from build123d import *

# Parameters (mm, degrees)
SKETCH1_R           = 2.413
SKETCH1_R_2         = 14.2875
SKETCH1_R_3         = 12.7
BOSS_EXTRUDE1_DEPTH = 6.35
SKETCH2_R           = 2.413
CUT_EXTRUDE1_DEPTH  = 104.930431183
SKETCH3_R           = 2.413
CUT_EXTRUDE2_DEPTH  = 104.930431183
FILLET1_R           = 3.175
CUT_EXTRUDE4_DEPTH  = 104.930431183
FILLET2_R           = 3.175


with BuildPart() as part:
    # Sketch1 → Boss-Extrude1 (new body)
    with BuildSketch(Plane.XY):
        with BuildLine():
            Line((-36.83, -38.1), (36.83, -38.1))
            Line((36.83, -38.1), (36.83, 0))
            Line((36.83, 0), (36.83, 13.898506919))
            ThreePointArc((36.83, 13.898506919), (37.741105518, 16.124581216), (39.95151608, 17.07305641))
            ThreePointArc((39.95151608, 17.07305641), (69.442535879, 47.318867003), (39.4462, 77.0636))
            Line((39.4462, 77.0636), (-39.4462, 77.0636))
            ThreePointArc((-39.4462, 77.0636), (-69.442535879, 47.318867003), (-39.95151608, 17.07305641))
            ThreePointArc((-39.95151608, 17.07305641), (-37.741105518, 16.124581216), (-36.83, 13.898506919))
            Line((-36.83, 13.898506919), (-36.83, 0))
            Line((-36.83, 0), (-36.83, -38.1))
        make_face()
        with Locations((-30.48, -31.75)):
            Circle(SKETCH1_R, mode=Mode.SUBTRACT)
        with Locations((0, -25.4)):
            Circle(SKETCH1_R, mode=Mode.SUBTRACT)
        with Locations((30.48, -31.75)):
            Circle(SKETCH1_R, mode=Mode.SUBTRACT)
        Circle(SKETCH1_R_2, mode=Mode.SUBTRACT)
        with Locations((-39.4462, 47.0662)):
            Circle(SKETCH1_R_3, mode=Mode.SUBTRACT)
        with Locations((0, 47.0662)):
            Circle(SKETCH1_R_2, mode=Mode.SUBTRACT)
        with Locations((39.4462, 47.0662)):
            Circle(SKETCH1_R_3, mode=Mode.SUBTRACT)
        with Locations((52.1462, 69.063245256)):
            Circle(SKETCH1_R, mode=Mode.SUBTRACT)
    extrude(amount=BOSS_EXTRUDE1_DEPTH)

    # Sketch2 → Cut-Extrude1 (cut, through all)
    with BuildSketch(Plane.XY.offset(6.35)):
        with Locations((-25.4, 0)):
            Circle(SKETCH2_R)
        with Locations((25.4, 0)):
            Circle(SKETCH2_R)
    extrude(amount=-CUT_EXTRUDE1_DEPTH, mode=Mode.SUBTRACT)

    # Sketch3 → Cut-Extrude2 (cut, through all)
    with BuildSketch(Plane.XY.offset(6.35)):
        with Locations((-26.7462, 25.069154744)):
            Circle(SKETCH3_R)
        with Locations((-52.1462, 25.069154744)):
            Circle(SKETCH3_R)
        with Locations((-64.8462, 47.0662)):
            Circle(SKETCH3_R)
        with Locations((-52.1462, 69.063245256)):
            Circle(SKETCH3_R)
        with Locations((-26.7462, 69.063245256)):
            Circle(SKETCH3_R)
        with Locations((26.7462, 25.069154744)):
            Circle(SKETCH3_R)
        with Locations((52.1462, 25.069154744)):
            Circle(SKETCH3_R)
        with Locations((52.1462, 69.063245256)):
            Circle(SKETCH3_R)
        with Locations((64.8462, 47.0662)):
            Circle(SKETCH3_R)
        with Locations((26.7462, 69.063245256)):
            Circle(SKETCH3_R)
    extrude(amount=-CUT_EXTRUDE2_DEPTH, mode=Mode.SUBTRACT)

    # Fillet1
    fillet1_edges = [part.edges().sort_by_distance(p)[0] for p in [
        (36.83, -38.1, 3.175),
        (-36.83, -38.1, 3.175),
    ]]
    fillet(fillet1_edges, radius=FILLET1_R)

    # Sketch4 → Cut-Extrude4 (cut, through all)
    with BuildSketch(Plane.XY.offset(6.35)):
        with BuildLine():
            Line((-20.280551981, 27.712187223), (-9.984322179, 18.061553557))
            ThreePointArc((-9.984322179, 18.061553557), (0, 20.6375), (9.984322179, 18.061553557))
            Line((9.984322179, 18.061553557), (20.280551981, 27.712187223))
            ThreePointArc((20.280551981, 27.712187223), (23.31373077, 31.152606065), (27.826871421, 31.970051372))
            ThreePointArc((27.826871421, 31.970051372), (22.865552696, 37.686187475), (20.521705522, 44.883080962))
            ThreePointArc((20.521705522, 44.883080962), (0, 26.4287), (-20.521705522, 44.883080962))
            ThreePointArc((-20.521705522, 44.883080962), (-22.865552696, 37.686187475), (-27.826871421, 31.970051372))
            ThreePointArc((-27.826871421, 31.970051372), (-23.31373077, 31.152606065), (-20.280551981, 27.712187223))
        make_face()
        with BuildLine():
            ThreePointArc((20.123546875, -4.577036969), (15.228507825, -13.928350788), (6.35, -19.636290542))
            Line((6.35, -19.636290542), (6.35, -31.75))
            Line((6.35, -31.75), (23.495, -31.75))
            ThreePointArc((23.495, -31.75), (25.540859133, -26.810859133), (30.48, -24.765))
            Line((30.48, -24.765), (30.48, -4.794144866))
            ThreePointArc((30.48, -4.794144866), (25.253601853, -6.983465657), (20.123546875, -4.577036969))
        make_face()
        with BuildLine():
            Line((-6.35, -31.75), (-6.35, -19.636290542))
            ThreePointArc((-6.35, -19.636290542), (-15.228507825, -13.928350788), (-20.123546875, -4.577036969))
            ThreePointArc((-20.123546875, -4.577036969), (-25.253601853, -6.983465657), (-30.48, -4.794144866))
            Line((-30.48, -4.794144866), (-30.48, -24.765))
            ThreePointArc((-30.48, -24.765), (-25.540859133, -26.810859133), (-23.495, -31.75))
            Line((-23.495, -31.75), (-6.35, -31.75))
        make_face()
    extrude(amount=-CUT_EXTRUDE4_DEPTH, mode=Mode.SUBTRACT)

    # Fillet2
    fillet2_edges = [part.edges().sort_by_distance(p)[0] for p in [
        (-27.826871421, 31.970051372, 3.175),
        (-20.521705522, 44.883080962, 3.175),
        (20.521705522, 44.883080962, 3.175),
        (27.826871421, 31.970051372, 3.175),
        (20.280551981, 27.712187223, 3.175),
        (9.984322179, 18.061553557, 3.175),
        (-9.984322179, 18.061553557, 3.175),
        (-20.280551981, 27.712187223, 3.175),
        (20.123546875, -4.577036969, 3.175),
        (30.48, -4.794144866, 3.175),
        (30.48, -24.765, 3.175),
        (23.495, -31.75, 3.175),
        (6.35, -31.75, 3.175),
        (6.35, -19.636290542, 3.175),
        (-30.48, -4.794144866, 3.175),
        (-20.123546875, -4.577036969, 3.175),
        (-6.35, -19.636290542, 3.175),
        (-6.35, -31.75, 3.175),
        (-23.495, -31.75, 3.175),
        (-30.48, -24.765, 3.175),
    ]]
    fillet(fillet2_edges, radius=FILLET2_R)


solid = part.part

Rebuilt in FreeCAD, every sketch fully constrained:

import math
import FreeCAD as App
import Part
import Sketcher
Q = App.Units.Quantity


def edges_at(feature, points):
    """Names of the edges that pass closest to the given points."""
    edges = feature.Shape.Edges
    near = lambda p: min(range(len(edges)), key=lambda i: edges[i].distToShape(Part.Vertex(*p))[0])
    return sorted({f"Edge{near(p) + 1}" for p in points})

doc = App.newDocument("Part")
params = doc.addObject("Spreadsheet::Sheet", "Params")
for row, (alias, value) in enumerate([
    ("sketch1_diameter", "1 in"),
    ("sketch1_diameter2", "0.19 in"),
    ("sketch1_diameter3", "1.125 in"),
    ("sketch1_width", "2.9 in"),
    ("sketch1_radius", "0.125 in"),
    ("pad1_length", "0.25 in"),
    ("sketch2_diameter", "0.19 in"),
    ("sketch3_diameter", "0.19 in"),
    ("fillet_radius", "0.125 in"),
    ("sketch4_radius", "0.75 in"),
    ("sketch4_radius2", "0.8125 in"),
    ("sketch4_radius3", "0.275 in"),
    ("fillet2_radius", "0.125 in"),
], start=1):
    params.set(f"A{row}", alias)
    params.set(f"B{row}", "=" + value)
    params.setAlias(f"B{row}", alias)

body = doc.addObject("PartDesign::Body", "Body")

# Sketch on XY plane
sketch1 = body.newObject("Sketcher::SketchObject", "Sketch")
sketch1.AttachmentSupport = (doc.getObject("XY_Plane"), [""])
sketch1.MapMode = "FlatFace"
sketch1.addGeometry([
    Part.LineSegment(App.Vector(-36.8, -38.1, 0), App.Vector(36.8, -38.1, 0)),  # 0
    Part.LineSegment(App.Vector(36.8, -38.1, 0), App.Vector(36.8, 13.9, 0)),  # 1
    Part.ArcOfCircle(Part.Circle(App.Vector(40, 13.9, 0), App.Vector(0, 0, 1), 3.2), math.radians(91), math.radians(180)),  # 2
    Part.ArcOfCircle(Part.Circle(App.Vector(39.4, 47.1, 0), App.Vector(0, 0, 1), 30), math.radians(-89), math.radians(90)),  # 3
    Part.LineSegment(App.Vector(39.4, 77.1, 0), App.Vector(-39.4, 77.1, 0)),  # 4
    Part.ArcOfCircle(Part.Circle(App.Vector(-39.4, 47.1, 0), App.Vector(0, 0, 1), 30), math.radians(90), math.radians(269)),  # 5
    Part.ArcOfCircle(Part.Circle(App.Vector(-40, 13.9, 0), App.Vector(0, 0, 1), 3.2), math.radians(0), math.radians(89)),  # 6
    Part.LineSegment(App.Vector(-36.8, 13.9, 0), App.Vector(-36.8, -38.1, 0)),  # 7
    Part.Circle(App.Vector(-30.5, -31.8, 0), App.Vector(0, 0, 1), 2.4),  # 8
    Part.Circle(App.Vector(0, -25.4, 0), App.Vector(0, 0, 1), 2.4),  # 9
    Part.Circle(App.Vector(0, 0, 0), App.Vector(0, 0, 1), 14.3),  # 10
    Part.Circle(App.Vector(30.5, -31.8, 0), App.Vector(0, 0, 1), 2.4),  # 11
    Part.Circle(App.Vector(-39.4, 47.1, 0), App.Vector(0, 0, 1), 12.7),  # 12
    Part.Circle(App.Vector(0, 47.1, 0), App.Vector(0, 0, 1), 14.3),  # 13
    Part.Circle(App.Vector(39.4, 47.1, 0), App.Vector(0, 0, 1), 12.7),  # 14
    Part.Circle(App.Vector(52.1, 69.1, 0), App.Vector(0, 0, 1), 2.4),  # 15
], False)
sketch1.addConstraint([
    Sketcher.Constraint("Coincident", 0, 2, 1, 1),
    Sketcher.Constraint("Tangent", 1, 2, 2, 2),
    Sketcher.Constraint("Tangent", 2, 1, 3, 1),
    Sketcher.Constraint("Tangent", 3, 2, 4, 1),
    Sketcher.Constraint("Tangent", 4, 2, 5, 1),
    Sketcher.Constraint("Tangent", 5, 2, 6, 2),
    Sketcher.Constraint("Tangent", 6, 1, 7, 1),
    Sketcher.Constraint("Coincident", 7, 2, 0, 1),
    Sketcher.Constraint("Horizontal", 0),
    Sketcher.Constraint("Vertical", 1),
    Sketcher.Constraint("Horizontal", 4),
    Sketcher.Constraint("Vertical", 7),
    Sketcher.Constraint("Coincident", 10, 3, -1, 1),
    Sketcher.Constraint("Coincident", 12, 3, 5, 3),
    Sketcher.Constraint("Coincident", 14, 3, 3, 3),
    Sketcher.Constraint("Equal", 3, 5),
    Sketcher.Constraint("Equal", 2, 6),
    Sketcher.Constraint("Equal", 8, 9),
    Sketcher.Constraint("Equal", 9, 11),
    Sketcher.Constraint("Equal", 10, 13),
    Sketcher.Constraint("Equal", 12, 14),
    Sketcher.Constraint("Equal", 11, 15),
    Sketcher.Constraint("Symmetric", 2, 3, 6, 3, -2),
    Sketcher.Constraint("Symmetric", 8, 3, 11, 3, -2),
    Sketcher.Constraint("PointOnObject", 9, 3, -2),
    Sketcher.Constraint("PointOnObject", 13, 3, -2),
    Sketcher.Constraint("Horizontal", 12, 3, 13, 3),
    Sketcher.Constraint("Diameter", 12, Q("1 in")),
    Sketcher.Constraint("Diameter", 8, Q("0.19 in")),
    Sketcher.Constraint("Diameter", 10, Q("1.125 in")),
    Sketcher.Constraint("DistanceX", 0, 1, 0, 2, Q("2.9 in")),
    Sketcher.Constraint("DistanceY", 9, 3, -1, 1, Q("1 in")),
    Sketcher.Constraint("Radius", 2, Q("0.125 in")),
    Sketcher.Constraint("Radius", 3, Q("1.181 in")),
    Sketcher.Constraint("DistanceX", 8, 3, -1, 1, Q("1.2 in")),
    Sketcher.Constraint("DistanceY", 0, 2, -1, 1, Q("1.5 in")),
    Sketcher.Constraint("DistanceX", 3, 3, 15, 3, Q("0.5 in")),
    Sketcher.Constraint("DistanceX", 4, 2, 4, 1, Q("3.106 in")),
    Sketcher.Constraint("DistanceY", 8, 3, -1, 1, Q("1.25 in")),
    Sketcher.Constraint("DistanceY", -1, 1, 3, 3, Q("1.853 in")),
    Sketcher.Constraint("DistanceY", 2, 3, 15, 3, Q("55.164738 mm")),
])
sketch1.setExpression("Constraints[27]", "Params.sketch1_diameter")
sketch1.setExpression("Constraints[28]", "Params.sketch1_diameter2")
sketch1.setExpression("Constraints[29]", "Params.sketch1_diameter3")
sketch1.setExpression("Constraints[30]", "Params.sketch1_width")
sketch1.setExpression("Constraints[32]", "Params.sketch1_radius")
pad1 = body.newObject("PartDesign::Pad", "Pad")
pad1.Profile = sketch1
pad1.setExpression("Length", "Params.pad1_length")

# Sketch on XY plane
sketch2 = body.newObject("Sketcher::SketchObject", "Sketch001")
sketch2.AttachmentSupport = (doc.getObject("XY_Plane"), [""])
sketch2.MapMode = "FlatFace"
sketch2.AttachmentOffset = App.Placement(App.Vector(0, 0, 0.25 * 25.4), App.Rotation())
sketch2.addGeometry([
    Part.Circle(App.Vector(-25.4, 0, 0), App.Vector(0, 0, 1), 2.4),
    Part.Circle(App.Vector(25.4, 0, 0), App.Vector(0, 0, 1), 2.4),
], False)
sketch2.addConstraint([
    Sketcher.Constraint("Equal", 0, 1),
    Sketcher.Constraint("Symmetric", 0, 3, 1, 3, -1, 1),
    Sketcher.Constraint("PointOnObject", 0, 3, -1),
    Sketcher.Constraint("Diameter", 0, Q("0.19 in")),
    Sketcher.Constraint("DistanceX", 0, 3, -1, 1, Q("1 in")),
])
sketch2.setExpression("Constraints[3]", "Params.sketch2_diameter")
pocket1 = body.newObject("PartDesign::Pocket", "Pocket")
pocket1.Profile = sketch2
pocket1.Type = "ThroughAll"

# Sketch on XY plane
sketch3 = body.newObject("Sketcher::SketchObject", "Sketch002")
sketch3.AttachmentSupport = (doc.getObject("XY_Plane"), [""])
sketch3.MapMode = "FlatFace"
sketch3.AttachmentOffset = App.Placement(App.Vector(0, 0, 0.25 * 25.4), App.Rotation())
sketch3.addGeometry([
    Part.Circle(App.Vector(-26.7, 25.1, 0), App.Vector(0, 0, 1), 2.4),  # 0
    Part.Circle(App.Vector(-52.1, 25.1, 0), App.Vector(0, 0, 1), 2.4),  # 1
    Part.Circle(App.Vector(-64.8, 47.1, 0), App.Vector(0, 0, 1), 2.4),  # 2
    Part.Circle(App.Vector(-52.1, 69.1, 0), App.Vector(0, 0, 1), 2.4),  # 3
    Part.Circle(App.Vector(-26.7, 69.1, 0), App.Vector(0, 0, 1), 2.4),  # 4
    Part.Circle(App.Vector(26.7, 25.1, 0), App.Vector(0, 0, 1), 2.4),  # 5
    Part.Circle(App.Vector(52.1, 25.1, 0), App.Vector(0, 0, 1), 2.4),  # 6
    Part.Circle(App.Vector(52.1, 69.1, 0), App.Vector(0, 0, 1), 2.4),  # 7
    Part.Circle(App.Vector(64.8, 47.1, 0), App.Vector(0, 0, 1), 2.4),  # 8
    Part.Circle(App.Vector(26.7, 69.1, 0), App.Vector(0, 0, 1), 2.4),  # 9
], False)
sketch3.addConstraint([
    Sketcher.Constraint("Equal", 0, 1),
    Sketcher.Constraint("Equal", 1, 2),
    Sketcher.Constraint("Equal", 2, 3),
    Sketcher.Constraint("Equal", 3, 4),
    Sketcher.Constraint("Equal", 4, 5),
    Sketcher.Constraint("Equal", 5, 6),
    Sketcher.Constraint("Equal", 6, 7),
    Sketcher.Constraint("Equal", 7, 8),
    Sketcher.Constraint("Equal", 8, 9),
    Sketcher.Constraint("Symmetric", 0, 3, 5, 3, -2),
    Sketcher.Constraint("Symmetric", 1, 3, 6, 3, -2),
    Sketcher.Constraint("Symmetric", 3, 3, 7, 3, -2),
    Sketcher.Constraint("Symmetric", 2, 3, 8, 3, -2),
    Sketcher.Constraint("Symmetric", 4, 3, 9, 3, -2),
    Sketcher.Constraint("Horizontal", 0, 3, 1, 3),
    Sketcher.Constraint("Horizontal", 3, 3, 4, 3),
    Sketcher.Constraint("Vertical", 1, 3, 3, 3),
    Sketcher.Constraint("Vertical", 0, 3, 4, 3),
    Sketcher.Constraint("Diameter", 0, Q("0.19 in")),
    Sketcher.Constraint("DistanceX", 1, 3, 0, 3, Q("1 in")),
    Sketcher.Constraint("DistanceX", 2, 3, 1, 3, Q("0.5 in")),
    Sketcher.Constraint("DistanceX", 0, 3, -1, 1, Q("1.053 in")),
    Sketcher.Constraint("DistanceY", -1, 1, 2, 3, Q("1.853 in")),
    Sketcher.Constraint("DistanceY", 1, 3, 3, 3, Q("43.994091 mm")),
    Sketcher.Constraint("DistanceY", -1, 1, 0, 3, Q("25.069155 mm")),
])
sketch3.setExpression("Constraints[18]", "Params.sketch3_diameter")
pocket2 = body.newObject("PartDesign::Pocket", "Pocket001")
pocket2.Profile = sketch3
pocket2.Type = "ThroughAll"
doc.recompute()

fillet = body.newObject("PartDesign::Fillet", "Fillet")
fillet.Base = (pocket2, edges_at(pocket2, [(36.83, -38.1, 3.175), (-36.83, -38.1, 3.175)]))
fillet.setExpression("Radius", "Params.fillet_radius")

# Sketch on XY plane
sketch4 = body.newObject("Sketcher::SketchObject", "Sketch003")
sketch4.AttachmentSupport = (doc.getObject("XY_Plane"), [""])
sketch4.MapMode = "FlatFace"
sketch4.AttachmentOffset = App.Placement(App.Vector(0, 0, 0.25 * 25.4), App.Rotation())
sketch4.addGeometry([
    Part.LineSegment(App.Vector(-20, 28, 0), App.Vector(-10, 18, 0)),  # 0
    Part.ArcOfCircle(Part.Circle(App.Vector(0, 0, 0), App.Vector(0, 0, 1), 21), math.radians(61), math.radians(119)),  # 1
    Part.LineSegment(App.Vector(10, 18, 0), App.Vector(20, 28, 0)),  # 2
    Part.ArcOfCircle(Part.Circle(App.Vector(27, 25, 0), App.Vector(0, 0, 1), 7), math.radians(81), math.radians(158)),  # 3
    Part.ArcOfCircle(Part.Circle(App.Vector(39, 47, 0), App.Vector(0, 0, 1), 19), math.radians(-173), math.radians(-128)),  # 4
    Part.ArcOfCircle(Part.Circle(App.Vector(0, 47, 0), App.Vector(0, 0, 1), 21), math.radians(-174), math.radians(-6)),  # 5
    Part.ArcOfCircle(Part.Circle(App.Vector(-39, 47, 0), App.Vector(0, 0, 1), 19), math.radians(-52), math.radians(-7)),  # 6
    Part.ArcOfCircle(Part.Circle(App.Vector(-27, 25, 0), App.Vector(0, 0, 1), 7), math.radians(22), math.radians(99)),  # 7
    Part.ArcOfCircle(Part.Circle(App.Vector(0, 0, 0), App.Vector(0, 0, 1), 21), math.radians(-72), math.radians(-13)),  # 8
    Part.LineSegment(App.Vector(6, -20, 0), App.Vector(6, -32, 0)),  # 9
    Part.LineSegment(App.Vector(6, -32, 0), App.Vector(23, -32, 0)),  # 10
    Part.ArcOfCircle(Part.Circle(App.Vector(30, -32, 0), App.Vector(0, 0, 1), 7), math.radians(90), math.radians(180)),  # 11
    Part.LineSegment(App.Vector(30, -25, 0), App.Vector(30, -5, 0)),  # 12
    Part.ArcOfCircle(Part.Circle(App.Vector(25, 0, 0), App.Vector(0, 0, 1), 7), math.radians(-139), math.radians(-43)),  # 13
    Part.LineSegment(App.Vector(-6, -32, 0), App.Vector(-6, -20, 0)),  # 14
    Part.ArcOfCircle(Part.Circle(App.Vector(0, 0, 0), App.Vector(0, 0, 1), 21), math.radians(-167), math.radians(-108)),  # 15
    Part.ArcOfCircle(Part.Circle(App.Vector(-25, 0, 0), App.Vector(0, 0, 1), 7), math.radians(-137), math.radians(-41)),  # 16
    Part.LineSegment(App.Vector(-30, -5, 0), App.Vector(-30, -25, 0)),  # 17
    Part.ArcOfCircle(Part.Circle(App.Vector(-30, -32, 0), App.Vector(0, 0, 1), 7), math.radians(0), math.radians(90)),  # 18
    Part.LineSegment(App.Vector(-23, -32, 0), App.Vector(-6, -32, 0)),  # 19
], False)
sketch4.addConstraint([
    Sketcher.Constraint("Coincident", 0, 2, 1, 2),
    Sketcher.Constraint("Coincident", 1, 1, 2, 1),
    Sketcher.Constraint("Coincident", 2, 2, 3, 2),
    Sketcher.Constraint("Coincident", 3, 1, 4, 2),
    Sketcher.Constraint("Coincident", 4, 1, 5, 2),
    Sketcher.Constraint("Coincident", 5, 1, 6, 2),
    Sketcher.Constraint("Coincident", 6, 1, 7, 2),
    Sketcher.Constraint("Coincident", 7, 1, 0, 1),
    Sketcher.Constraint("Coincident", 8, 1, 9, 1),
    Sketcher.Constraint("Coincident", 9, 2, 10, 1),
    Sketcher.Constraint("Coincident", 10, 2, 11, 2),
    Sketcher.Constraint("Coincident", 11, 1, 12, 1),
    Sketcher.Constraint("Coincident", 12, 2, 13, 2),
    Sketcher.Constraint("Coincident", 13, 1, 8, 2),
    Sketcher.Constraint("Coincident", 14, 2, 15, 2),
    Sketcher.Constraint("Coincident", 15, 1, 16, 2),
    Sketcher.Constraint("Coincident", 16, 1, 17, 1),
    Sketcher.Constraint("Coincident", 17, 2, 18, 2),
    Sketcher.Constraint("Coincident", 18, 1, 19, 1),
    Sketcher.Constraint("Coincident", 19, 2, 14, 1),
    Sketcher.Constraint("Vertical", 9),
    Sketcher.Constraint("Horizontal", 10),
    Sketcher.Constraint("Vertical", 12),
    Sketcher.Constraint("Vertical", 14),
    Sketcher.Constraint("Vertical", 17),
    Sketcher.Constraint("Horizontal", 19),
    Sketcher.Constraint("Coincident", 1, 3, -1, 1),
    Sketcher.Constraint("Coincident", 8, 3, -1, 1),
    Sketcher.Constraint("Coincident", 15, 3, -1, 1),
    Sketcher.Constraint("Equal", 1, 5),
    Sketcher.Constraint("Equal", 4, 6),
    Sketcher.Constraint("Equal", 3, 7),
    Sketcher.Constraint("Equal", 5, 8),
    Sketcher.Constraint("Equal", 7, 11),
    Sketcher.Constraint("Equal", 11, 13),
    Sketcher.Constraint("Equal", 8, 15),
    Sketcher.Constraint("Equal", 13, 16),
    Sketcher.Constraint("Equal", 16, 18),
    Sketcher.Constraint("Symmetric", 13, 3, 16, 3, -1, 1),
    Sketcher.Constraint("Symmetric", 4, 3, 6, 3, -2),
    Sketcher.Constraint("Symmetric", 3, 3, 7, 3, -2),
    Sketcher.Constraint("Symmetric", 11, 3, 18, 3, -2),
    Sketcher.Constraint("Symmetric", 12, 2, 16, 1, -2),
    Sketcher.Constraint("Symmetric", 9, 2, 19, 2, -2),
    Sketcher.Constraint("PointOnObject", 5, 3, -2),
    Sketcher.Constraint("Horizontal", 4, 3, 5, 3),
    Sketcher.Constraint("Horizontal", 0, 2, 1, 1),
    Sketcher.Constraint("Horizontal", 2, 2, 7, 1),
    Sketcher.Constraint("Horizontal", 18, 3, 9, 2),
    Sketcher.Constraint("Vertical", 18, 3, 16, 1),
    Sketcher.Constraint("Radius", 4, Q("0.75 in")),
    Sketcher.Constraint("DistanceX", -1, 1, 13, 3, Q("1 in")),
    Sketcher.Constraint("Radius", 1, Q("0.8125 in")),
    Sketcher.Constraint("Radius", 3, Q("0.275 in")),
    Sketcher.Constraint("DistanceX", -1, 1, 11, 3, Q("1.2 in")),
    Sketcher.Constraint("DistanceX", 3, 3, 4, 3, Q("0.5 in")),
    Sketcher.Constraint("DistanceX", 14, 2, 8, 1, Q("0.5 in")),
    Sketcher.Constraint("DistanceY", 11, 3, -1, 1, Q("1.25 in")),
    Sketcher.Constraint("DistanceX", -1, 1, 3, 3, Q("1.053 in")),
    Sketcher.Constraint("DistanceY", -1, 1, 4, 3, Q("1.853 in")),
    Sketcher.Constraint("DistanceY", 0, 2, 7, 3, Q("7.007601 mm")),
    Sketcher.Constraint("DistanceY", 16, 1, 7, 3, Q("29.8633 mm")),
    Sketcher.Constraint("Distance", 0, Q("14.111948 mm")),
])
sketch4.setExpression("Constraints[50]", "Params.sketch4_radius")
sketch4.setExpression("Constraints[52]", "Params.sketch4_radius2")
sketch4.setExpression("Constraints[53]", "Params.sketch4_radius3")
pocket3 = body.newObject("PartDesign::Pocket", "Pocket002")
pocket3.Profile = sketch4
pocket3.Type = "ThroughAll"
doc.recompute()

fillet2 = body.newObject("PartDesign::Fillet", "Fillet001")
fillet2.Base = (pocket3, edges_at(pocket3, [
    (-27.827, 31.97, 3.175),
    (-20.522, 44.883, 3.175),
    (20.522, 44.883, 3.175),
    (27.827, 31.97, 3.175),
    (20.281, 27.712, 3.175),
    (9.984, 18.062, 3.175),
    (-9.984, 18.062, 3.175),
    (-20.281, 27.712, 3.175),
    (20.124, -4.577, 3.175),
    (30.48, -4.794, 3.175),
    (30.48, -24.765, 3.175),
    (23.495, -31.75, 3.175),
    (6.35, -31.75, 3.175),
    (6.35, -19.636, 3.175),
    (-30.48, -4.794, 3.175),
    (-20.124, -4.577, 3.175),
    (-6.35, -19.636, 3.175),
    (-6.35, -31.75, 3.175),
    (-23.495, -31.75, 3.175),
    (-30.48, -24.765, 3.175),
]))
fillet2.setExpression("Radius", "Params.fillet2_radius")

doc.recompute()
